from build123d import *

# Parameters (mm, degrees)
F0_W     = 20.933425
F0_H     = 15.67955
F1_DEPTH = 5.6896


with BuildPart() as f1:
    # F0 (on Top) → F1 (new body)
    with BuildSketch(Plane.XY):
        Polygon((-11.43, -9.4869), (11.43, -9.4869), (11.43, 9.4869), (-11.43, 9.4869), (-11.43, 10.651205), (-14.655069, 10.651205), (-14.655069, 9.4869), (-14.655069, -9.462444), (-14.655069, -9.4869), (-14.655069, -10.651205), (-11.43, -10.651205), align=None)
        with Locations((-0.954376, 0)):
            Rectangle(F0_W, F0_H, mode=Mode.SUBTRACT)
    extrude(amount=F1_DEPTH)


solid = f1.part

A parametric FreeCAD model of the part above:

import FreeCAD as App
import Part
import Sketcher
from FreeCAD import Vector
Q = App.Units.Quantity

doc = App.newDocument("Part")
body = doc.addObject("PartDesign::Body", "Body")

sketch1 = doc.addObject("Sketcher::SketchObject", "Sketch")
body.addObject(sketch1)
sketch1.AttachmentSupport = (doc.XY_Plane, [""])
sketch1.MapMode = "FlatFace"
sketch1.addGeometry([
    Part.LineSegment(Vector(-11.43, -9.4869, 0), Vector(11.43, -9.4869, 0)),
    Part.LineSegment(Vector(11.43, -9.4869, 0), Vector(11.43, 9.4869, 0)),
    Part.LineSegment(Vector(11.43, 9.4869, 0), Vector(-11.43, 9.4869, 0)),
    Part.LineSegment(Vector(-11.43, 9.4869, 0), Vector(-11.43, 10.651205, 0)),
    Part.LineSegment(Vector(-11.43, 10.651205, 0), Vector(-14.655069, 10.651205, 0)),
    Part.LineSegment(Vector(-14.655069, 10.651205, 0), Vector(-14.655069, -10.651205, 0)),
    Part.LineSegment(Vector(-14.655069, -10.651205, 0), Vector(-11.43, -10.651205, 0)),
    Part.LineSegment(Vector(-11.43, -10.651205, 0), Vector(-11.43, -9.4869, 0)),
    Part.LineSegment(Vector(9.512336, -7.839775, 0), Vector(-11.421088, -7.839775, 0)),
    Part.LineSegment(Vector(-11.421088, -7.839775, 0), Vector(-11.421088, 7.839775, 0)),
    Part.LineSegment(Vector(-11.421088, 7.839775, 0), Vector(9.512336, 7.839775, 0)),
    Part.LineSegment(Vector(9.512336, 7.839775, 0), Vector(9.512336, -7.839775, 0)),
], False)
sketch1.addConstraint([
    Sketcher.Constraint("Coincident", 0, 2, 1, 1),
    Sketcher.Constraint("Coincident", 1, 2, 2, 1),
    Sketcher.Constraint("Coincident", 2, 2, 3, 1),
    Sketcher.Constraint("Coincident", 3, 2, 4, 1),
    Sketcher.Constraint("Coincident", 4, 2, 5, 1),
    Sketcher.Constraint("Coincident", 5, 2, 6, 1),
    Sketcher.Constraint("Coincident", 6, 2, 7, 1),
    Sketcher.Constraint("Coincident", 7, 2, 0, 1),
    Sketcher.Constraint("Coincident", 8, 2, 9, 1),
    Sketcher.Constraint("Coincident", 9, 2, 10, 1),
    Sketcher.Constraint("Coincident", 10, 2, 11, 1),
    Sketcher.Constraint("Coincident", 11, 2, 8, 1),
    Sketcher.Constraint("Horizontal", 0),
    Sketcher.Constraint("Vertical", 1),
    Sketcher.Constraint("Horizontal", 2),
    Sketcher.Constraint("Vertical", 3),
    Sketcher.Constraint("Horizontal", 4),
    Sketcher.Constraint("Vertical", 5),
    Sketcher.Constraint("Horizontal", 6),
    Sketcher.Constraint("Vertical", 7),
    Sketcher.Constraint("Horizontal", 8),
    Sketcher.Constraint("Vertical", 9),
    Sketcher.Constraint("Horizontal", 10),
    Sketcher.Constraint("Vertical", 11),
    Sketcher.Constraint("Symmetric", 0, 2, 2, 2, -1, 1),
    Sketcher.Constraint("Symmetric", 3, 2, 6, 2, -1),
    Sketcher.Constraint("DistanceX", 0, 1, 0, 2, Q("0.9 in")),
    Sketcher.Constraint("DistanceY", 1, 1, 1, 2, Q("0.747 in")),
    Sketcher.Constraint("DistanceX", 4, 2, 4, 1, Q("3.225069 mm")),
    Sketcher.Constraint("DistanceY", 5, 2, 5, 1, Q("21.30241 mm")),
    Sketcher.Constraint("DistanceY", 9, 1, 9, 2, Q("15.67955 mm")),
    Sketcher.Constraint("DistanceX", 8, 2, 8, 1, Q("20.933425 mm")),
    Sketcher.Constraint("DistanceX", 8, 2, -1, 1, Q("11.421088 mm")),
    Sketcher.Constraint("DistanceY", 6, 2, 8, 2, Q("2.81143 mm")),
])
pad1 = doc.addObject("PartDesign::Pad", "Pad")
body.addObject(pad1)
pad1.Profile = sketch1
pad1.Length = Q("0.224 in")

doc.recompute()
